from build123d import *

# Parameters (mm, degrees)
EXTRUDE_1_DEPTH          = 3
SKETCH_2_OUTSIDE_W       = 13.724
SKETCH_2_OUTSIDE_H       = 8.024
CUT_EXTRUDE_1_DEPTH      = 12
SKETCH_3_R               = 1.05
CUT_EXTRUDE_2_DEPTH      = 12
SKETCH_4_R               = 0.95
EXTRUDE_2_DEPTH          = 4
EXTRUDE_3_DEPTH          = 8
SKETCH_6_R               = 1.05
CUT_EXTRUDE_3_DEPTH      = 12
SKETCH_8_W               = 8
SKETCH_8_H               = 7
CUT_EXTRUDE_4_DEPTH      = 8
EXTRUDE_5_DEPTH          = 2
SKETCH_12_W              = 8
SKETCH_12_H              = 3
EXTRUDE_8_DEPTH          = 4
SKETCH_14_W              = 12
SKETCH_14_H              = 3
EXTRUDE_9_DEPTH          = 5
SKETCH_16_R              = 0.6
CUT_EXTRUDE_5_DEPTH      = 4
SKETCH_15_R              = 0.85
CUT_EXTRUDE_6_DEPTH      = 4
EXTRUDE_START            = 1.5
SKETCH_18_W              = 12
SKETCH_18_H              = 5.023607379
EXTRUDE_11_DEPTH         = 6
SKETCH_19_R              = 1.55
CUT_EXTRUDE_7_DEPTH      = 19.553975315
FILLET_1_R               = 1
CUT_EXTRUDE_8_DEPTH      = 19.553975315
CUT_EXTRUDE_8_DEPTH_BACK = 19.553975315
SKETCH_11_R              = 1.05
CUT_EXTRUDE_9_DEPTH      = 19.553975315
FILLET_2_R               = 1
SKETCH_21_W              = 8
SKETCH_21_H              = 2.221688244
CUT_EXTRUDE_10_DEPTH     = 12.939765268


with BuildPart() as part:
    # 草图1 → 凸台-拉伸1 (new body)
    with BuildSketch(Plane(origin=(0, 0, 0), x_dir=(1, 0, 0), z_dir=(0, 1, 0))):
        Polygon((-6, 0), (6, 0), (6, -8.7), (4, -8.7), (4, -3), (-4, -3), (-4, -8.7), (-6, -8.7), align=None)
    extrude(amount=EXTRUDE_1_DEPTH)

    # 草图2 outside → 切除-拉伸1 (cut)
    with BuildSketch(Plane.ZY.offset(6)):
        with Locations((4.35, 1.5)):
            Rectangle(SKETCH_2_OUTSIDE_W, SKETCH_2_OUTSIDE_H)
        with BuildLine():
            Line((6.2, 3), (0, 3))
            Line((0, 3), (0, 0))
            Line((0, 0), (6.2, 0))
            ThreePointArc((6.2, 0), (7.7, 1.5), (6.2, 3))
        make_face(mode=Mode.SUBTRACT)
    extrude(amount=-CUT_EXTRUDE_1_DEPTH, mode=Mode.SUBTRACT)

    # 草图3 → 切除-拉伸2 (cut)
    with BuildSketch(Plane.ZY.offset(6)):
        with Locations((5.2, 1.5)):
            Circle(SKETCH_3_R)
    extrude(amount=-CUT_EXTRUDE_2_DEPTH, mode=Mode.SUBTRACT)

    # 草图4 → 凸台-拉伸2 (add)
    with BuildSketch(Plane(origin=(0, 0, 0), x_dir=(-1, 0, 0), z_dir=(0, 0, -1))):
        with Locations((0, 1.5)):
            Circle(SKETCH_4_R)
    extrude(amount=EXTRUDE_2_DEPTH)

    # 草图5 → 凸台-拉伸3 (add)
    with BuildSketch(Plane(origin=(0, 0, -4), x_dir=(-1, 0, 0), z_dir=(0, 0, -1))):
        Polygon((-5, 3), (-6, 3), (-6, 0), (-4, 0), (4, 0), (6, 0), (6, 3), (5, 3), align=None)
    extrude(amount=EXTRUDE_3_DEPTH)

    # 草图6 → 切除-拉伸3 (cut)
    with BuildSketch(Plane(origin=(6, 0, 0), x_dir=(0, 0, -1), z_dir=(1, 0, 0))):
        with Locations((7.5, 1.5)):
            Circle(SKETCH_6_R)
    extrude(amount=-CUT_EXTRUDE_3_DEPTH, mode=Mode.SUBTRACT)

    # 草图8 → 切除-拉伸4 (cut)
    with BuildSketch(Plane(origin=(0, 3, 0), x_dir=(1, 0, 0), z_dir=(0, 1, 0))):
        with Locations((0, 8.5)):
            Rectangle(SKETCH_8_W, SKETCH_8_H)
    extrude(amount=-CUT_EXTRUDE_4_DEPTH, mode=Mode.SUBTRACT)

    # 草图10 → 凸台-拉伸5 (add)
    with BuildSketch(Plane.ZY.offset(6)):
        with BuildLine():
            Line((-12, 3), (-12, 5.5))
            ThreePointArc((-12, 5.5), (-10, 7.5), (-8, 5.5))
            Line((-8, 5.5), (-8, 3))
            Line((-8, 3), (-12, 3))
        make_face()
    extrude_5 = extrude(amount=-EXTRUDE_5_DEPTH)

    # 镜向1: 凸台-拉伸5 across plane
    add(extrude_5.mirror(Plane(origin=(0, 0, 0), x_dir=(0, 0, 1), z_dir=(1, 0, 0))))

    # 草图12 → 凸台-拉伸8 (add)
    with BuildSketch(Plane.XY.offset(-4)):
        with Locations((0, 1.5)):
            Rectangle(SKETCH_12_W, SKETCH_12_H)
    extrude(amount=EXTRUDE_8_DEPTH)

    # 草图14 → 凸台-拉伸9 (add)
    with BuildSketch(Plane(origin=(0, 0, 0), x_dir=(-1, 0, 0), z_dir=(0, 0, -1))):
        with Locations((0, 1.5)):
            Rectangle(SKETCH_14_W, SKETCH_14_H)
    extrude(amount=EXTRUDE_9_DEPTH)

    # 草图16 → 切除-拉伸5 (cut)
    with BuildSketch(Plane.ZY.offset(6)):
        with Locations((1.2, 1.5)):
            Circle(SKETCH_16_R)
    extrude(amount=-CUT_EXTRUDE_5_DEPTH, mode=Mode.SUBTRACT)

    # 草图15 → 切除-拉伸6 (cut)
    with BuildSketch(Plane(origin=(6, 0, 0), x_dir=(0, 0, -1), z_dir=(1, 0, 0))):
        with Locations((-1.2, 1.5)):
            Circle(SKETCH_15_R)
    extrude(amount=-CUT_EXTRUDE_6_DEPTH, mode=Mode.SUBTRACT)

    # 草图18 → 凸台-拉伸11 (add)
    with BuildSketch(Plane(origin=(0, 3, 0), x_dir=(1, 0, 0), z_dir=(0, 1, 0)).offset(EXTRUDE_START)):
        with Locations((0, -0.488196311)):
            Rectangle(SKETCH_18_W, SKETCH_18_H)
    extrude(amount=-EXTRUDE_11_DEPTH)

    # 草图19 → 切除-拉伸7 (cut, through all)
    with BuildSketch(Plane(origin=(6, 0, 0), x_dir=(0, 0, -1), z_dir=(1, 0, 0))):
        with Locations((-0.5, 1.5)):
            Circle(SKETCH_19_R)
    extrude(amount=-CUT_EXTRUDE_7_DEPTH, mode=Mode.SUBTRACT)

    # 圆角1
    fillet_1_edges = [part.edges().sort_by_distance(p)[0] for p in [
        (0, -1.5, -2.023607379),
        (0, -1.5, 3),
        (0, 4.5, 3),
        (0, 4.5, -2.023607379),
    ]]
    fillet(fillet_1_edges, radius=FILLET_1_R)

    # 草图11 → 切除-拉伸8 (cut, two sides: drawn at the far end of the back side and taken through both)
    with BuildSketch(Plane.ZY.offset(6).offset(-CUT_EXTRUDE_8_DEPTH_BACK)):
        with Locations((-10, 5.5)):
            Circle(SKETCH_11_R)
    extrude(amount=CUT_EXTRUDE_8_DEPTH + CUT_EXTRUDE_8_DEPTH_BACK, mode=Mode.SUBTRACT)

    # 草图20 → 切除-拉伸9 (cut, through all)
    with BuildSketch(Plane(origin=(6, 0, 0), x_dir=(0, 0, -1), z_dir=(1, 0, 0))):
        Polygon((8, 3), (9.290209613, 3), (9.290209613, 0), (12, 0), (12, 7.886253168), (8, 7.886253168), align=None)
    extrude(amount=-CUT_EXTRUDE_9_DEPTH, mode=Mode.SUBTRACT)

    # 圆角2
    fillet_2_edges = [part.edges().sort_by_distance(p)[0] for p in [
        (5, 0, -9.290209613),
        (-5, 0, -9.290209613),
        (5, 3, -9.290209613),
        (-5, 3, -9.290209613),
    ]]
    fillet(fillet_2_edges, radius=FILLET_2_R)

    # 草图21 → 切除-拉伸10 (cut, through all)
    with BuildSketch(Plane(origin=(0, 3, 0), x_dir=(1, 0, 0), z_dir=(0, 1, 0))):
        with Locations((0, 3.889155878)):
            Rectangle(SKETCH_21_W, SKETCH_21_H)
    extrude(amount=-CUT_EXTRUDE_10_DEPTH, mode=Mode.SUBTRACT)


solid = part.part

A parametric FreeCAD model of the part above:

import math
import FreeCAD as App
import Part
import Sketcher
from FreeCAD import Vector


def edges_at(feature, points):
    """Names of the edges that pass closest to the given points."""
    edges = feature.Shape.Edges
    near = lambda p: min(range(len(edges)), key=lambda i: edges[i].distToShape(Part.Vertex(*p))[0])
    return sorted({f"Edge{near(p) + 1}" for p in points})


def add_polygon(sketch, points):
    """Adds a closed chain of lines whose ends are joined by coincident constraints."""
    first, n = sketch.GeometryCount, len(points)
    for a, b in zip(points, points[1:] + points[:1]):
        sketch.addGeometry(Part.LineSegment(App.Vector(*a, 0), App.Vector(*b, 0)), False)
    for i in range(n):
        sketch.addConstraint(Sketcher.Constraint("Coincident", first + i, 2, first + (i + 1) % n, 1))

doc = App.newDocument("Part")
body = doc.addObject("PartDesign::Body", "Body")

sketch1 = body.newObject("Sketcher::SketchObject", "Sketch")
sketch1.AttachmentSupport = (doc.getObject("XZ_Plane"), [""])
sketch1.MapMode = "FlatFace"
add_polygon(sketch1, [(6, 0), (-6, 0), (-6, 8.7), (-4, 8.7), (-4, 3), (4, 3), (4, 8.7), (6, 8.7)])
sketch1.addConstraint(Sketcher.Constraint("Horizontal", 0))
sketch1.addConstraint(Sketcher.Constraint("Vertical", 1))
sketch1.addConstraint(Sketcher.Constraint("Horizontal", 2))
sketch1.addConstraint(Sketcher.Constraint("Vertical", 3))
sketch1.addConstraint(Sketcher.Constraint("Horizontal", 4))
sketch1.addConstraint(Sketcher.Constraint("Vertical", 5))
sketch1.addConstraint(Sketcher.Constraint("Horizontal", 6))
sketch1.addConstraint(Sketcher.Constraint("Vertical", 7))
sketch1.addConstraint(Sketcher.Constraint("Symmetric", 0, 2, 7, 2, -1, 1))
sketch1.addConstraint(Sketcher.Constraint("Symmetric", 2, 2, 5, 2, -2))
sketch1.addConstraint(Sketcher.Constraint("DistanceX", 0, 2, 0, 1, 12.0))
sketch1.addConstraint(Sketcher.Constraint("DistanceX", 2, 1, 2, 2, 2.0))
sketch1.addConstraint(Sketcher.Constraint("DistanceY", 1, 1, 1, 2, 8.7))
sketch1.addConstraint(Sketcher.Constraint("DistanceY", 3, 2, 3, 1, 5.7))
pad1 = body.newObject("PartDesign::Pad", "Pad")
pad1.Profile = sketch1
pad1.Length = 3
pad1.Reversed = True

sketch2 = body.newObject("Sketcher::SketchObject", "Sketch001")
sketch2.AttachmentSupport = (doc.getObject("YZ_Plane"), [""])
sketch2.MapMode = "FlatFace"
sketch2.AttachmentOffset = App.Placement(Vector(0, 0, -6), App.Rotation())
add_polygon(sketch2, [(5.5, -2.5), (-2.5, -2.5), (-2.5, 11.2), (5.5, 11.2)])
sketch2.addGeometry(Part.LineSegment(Vector(3, 0, 0), Vector(3, 6.2, 0)), False)
sketch2.addGeometry(Part.ArcOfCircle(Part.Circle(Vector(1.5, 6.2, 0), Vector(0, 0, 1), 1.5), math.radians(0), math.radians(180)), False)
sketch2.addGeometry(Part.LineSegment(Vector(0, 6.2, 0), Vector(0, 0, 0)), False)
sketch2.addGeometry(Part.LineSegment(Vector(0, 0, 0), Vector(3, 0, 0)), False)
sketch2.addConstraint(Sketcher.Constraint("Tangent", 4, 2, 5, 1))
sketch2.addConstraint(Sketcher.Constraint("Tangent", 5, 2, 6, 1))
sketch2.addConstraint(Sketcher.Constraint("Coincident", 6, 2, 7, 1))
sketch2.addConstraint(Sketcher.Constraint("Coincident", 7, 2, 4, 1))
sketch2.addConstraint(Sketcher.Constraint("Horizontal", 0))
sketch2.addConstraint(Sketcher.Constraint("Vertical", 1))
sketch2.addConstraint(Sketcher.Constraint("Horizontal", 2))
sketch2.addConstraint(Sketcher.Constraint("Vertical", 3))
sketch2.addConstraint(Sketcher.Constraint("Vertical", 4))
sketch2.addConstraint(Sketcher.Constraint("Vertical", 6))
sketch2.addConstraint(Sketcher.Constraint("Horizontal", 7))
sketch2.addConstraint(Sketcher.Constraint("Coincident", 6, 2, -1, 1))
sketch2.addConstraint(Sketcher.Constraint("Radius", 5, 1.5))
sketch2.addConstraint(Sketcher.Constraint("DistanceY", 4, 1, 4, 2, 6.2))
sketch2.addConstraint(Sketcher.Constraint("DistanceX", 0, 2, 0, 1, 8.024))
sketch2.addConstraint(Sketcher.Constraint("DistanceY", 1, 1, 1, 2, 13.724))
sketch2.addConstraint(Sketcher.Constraint("DistanceX", 0, 2, -1, 1, 2.512))
sketch2.addConstraint(Sketcher.Constraint("DistanceY", 0, 2, -1, 1, 2.512))
pocket1 = body.newObject("PartDesign::Pocket", "Pocket")
pocket1.Profile = sketch2
pocket1.Length = 12
pocket1.Reversed = True

sketch3 = body.newObject("Sketcher::SketchObject", "Sketch002")
sketch3.AttachmentSupport = (doc.getObject("YZ_Plane"), [""])
sketch3.MapMode = "FlatFace"
sketch3.AttachmentOffset = App.Placement(Vector(0, 0, -6), App.Rotation())
sketch3.addGeometry(Part.Circle(Vector(1.5, 5.2, 0), Vector(0, 0, 1), 1.1), False)
sketch3.addConstraint(Sketcher.Constraint("Diameter", 0, 2.1))
sketch3.addConstraint(Sketcher.Constraint("DistanceX", -1, 1, 0, 3, 1.5))
sketch3.addConstraint(Sketcher.Constraint("DistanceY", -1, 1, 0, 3, 5.2))
pocket2 = body.newObject("PartDesign::Pocket", "Pocket001")
pocket2.Profile = sketch3
pocket2.Length = 12
pocket2.Reversed = True

sketch4 = body.newObject("Sketcher::SketchObject", "Sketch003")
sketch4.AttachmentSupport = (doc.getObject("XY_Plane"), [""])
sketch4.MapMode = "FlatFace"
sketch4.addGeometry(Part.Circle(Vector(0, 1.5, 0), Vector(0, 0, 1), 0.9), False)
sketch4.addConstraint(Sketcher.Constraint("PointOnObject", 0, 3, -2))
sketch4.addConstraint(Sketcher.Constraint("Diameter", 0, 1.9))
sketch4.addConstraint(Sketcher.Constraint("DistanceY", -1, 1, 0, 3, 1.5))
pad2 = body.newObject("PartDesign::Pad", "Pad001")
pad2.Profile = sketch4
pad2.Length = 4
pad2.Reversed = True

sketch5 = body.newObject("Sketcher::SketchObject", "Sketch004")
sketch5.AttachmentSupport = (doc.getObject("XY_Plane"), [""])
sketch5.MapMode = "FlatFace"
sketch5.AttachmentOffset = App.Placement(Vector(0, 0, -4), App.Rotation())
add_polygon(sketch5, [(6, 3), (6, 0), (-6, 0), (-6, 3)])
sketch5.addConstraint(Sketcher.Constraint("Vertical", 0))
sketch5.addConstraint(Sketcher.Constraint("Horizontal", 1))
sketch5.addConstraint(Sketcher.Constraint("Vertical", 2))
sketch5.addConstraint(Sketcher.Constraint("Horizontal", 3))
sketch5.addConstraint(Sketcher.Constraint("Symmetric", 0, 2, 1, 2, -1, 1))
sketch5.addConstraint(Sketcher.Constraint("DistanceX", 1, 2, 1, 1, 12.0))
sketch5.addConstraint(Sketcher.Constraint("DistanceY", 0, 2, 0, 1, 3.0))
pad3 = body.newObject("PartDesign::Pad", "Pad002")
pad3.Profile = sketch5
pad3.Length = 8
pad3.Reversed = True

sketch6 = body.newObject("Sketcher::SketchObject", "Sketch005")
sketch6.AttachmentSupport = (doc.getObject("YZ_Plane"), [""])
sketch6.MapMode = "FlatFace"
sketch6.AttachmentOffset = App.Placement(Vector(0, 0, 6), App.Rotation())
sketch6.addGeometry(Part.Circle(Vector(1.5, -7.5, 0), Vector(0, 0, 1), 1.1), False)
sketch6.addConstraint(Sketcher.Constraint("Diameter", 0, 2.1))
sketch6.addConstraint(Sketcher.Constraint("DistanceX", -1, 1, 0, 3, 1.5))
sketch6.addConstraint(Sketcher.Constraint("DistanceY", 0, 3, -1, 1, 7.5))
pocket3 = body.newObject("PartDesign::Pocket", "Pocket002")
pocket3.Profile = sketch6
pocket3.Length = 12

sketch7 = body.newObject("Sketcher::SketchObject", "Sketch006")
sketch7.AttachmentSupport = (doc.getObject("XZ_Plane"), [""])
sketch7.MapMode = "FlatFace"
sketch7.AttachmentOffset = App.Placement(Vector(0, 0, -3), App.Rotation())
add_polygon(sketch7, [(-4, -12), (-4, -5), (4, -5), (4, -12)])
sketch7.addConstraint(Sketcher.Constraint("Vertical", 0))
sketch7.addConstraint(Sketcher.Constraint("Horizontal", 1))
sketch7.addConstraint(Sketcher.Constraint("Vertical", 2))
sketch7.addConstraint(Sketcher.Constraint("Horizontal", 3))
sketch7.addConstraint(Sketcher.Constraint("DistanceX", 1, 1, 1, 2, 8.0))
sketch7.addConstraint(Sketcher.Constraint("DistanceY", 0, 1, 0, 2, 7.0))
sketch7.addConstraint(Sketcher.Constraint("DistanceX", 0, 2, -1, 1, 4.0))
sketch7.addConstraint(Sketcher.Constraint("DistanceY", 0, 2, -1, 1, 5.0))
pocket4 = body.newObject("PartDesign::Pocket", "Pocket003")
pocket4.Profile = sketch7
pocket4.Length = 8
pocket4.Reversed = True

sketch8 = body.newObject("Sketcher::SketchObject", "Sketch007")
sketch8.AttachmentSupport = (doc.getObject("YZ_Plane"), [""])
sketch8.MapMode = "FlatFace"
sketch8.AttachmentOffset = App.Placement(Vector(0, 0, -6), App.Rotation())
sketch8.addGeometry(Part.LineSegment(Vector(5.5, -12, 0), Vector(3, -12, 0)), False)
sketch8.addGeometry(Part.LineSegment(Vector(3, -12, 0), Vector(3, -8, 0)), False)
sketch8.addGeometry(Part.LineSegment(Vector(3, -8, 0), Vector(5.5, -8, 0)), False)
sketch8.addGeometry(Part.ArcOfCircle(Part.Circle(Vector(5.5, -10, 0), Vector(0, 0, 1), 2), math.radians(-90), math.radians(90)), False)
sketch8.addConstraint(Sketcher.Constraint("Coincident", 0, 2, 1, 1))
sketch8.addConstraint(Sketcher.Constraint("Coincident", 1, 2, 2, 1))
sketch8.addConstraint(Sketcher.Constraint("Tangent", 2, 2, 3, 2))
sketch8.addConstraint(Sketcher.Constraint("Tangent", 3, 1, 0, 1))
sketch8.addConstraint(Sketcher.Constraint("Horizontal", 0))
sketch8.addConstraint(Sketcher.Constraint("Vertical", 1))
sketch8.addConstraint(Sketcher.Constraint("Horizontal", 2))
sketch8.addConstraint(Sketcher.Constraint("Radius", 3, 2.0))
sketch8.addConstraint(Sketcher.Constraint("DistanceX", 0, 2, 0, 1, 2.5))
sketch8.addConstraint(Sketcher.Constraint("DistanceY", 3, 3, -1, 1, 10.0))
sketch8.addConstraint(Sketcher.Constraint("DistanceX", -1, 1, 0, 2, 3.0))
pad4 = body.newObject("PartDesign::Pad", "Pad003")
pad4.Profile = sketch8
pad4.Length = 2
doc.recompute()

mirrored = body.newObject("PartDesign::Mirrored", "Mirrored")
mirrored.Originals = [pad4]
mirrored.MirrorPlane = (doc.getObject("YZ_Plane"), [""])
body.Tip = mirrored

sketch9 = body.newObject("Sketcher::SketchObject", "Sketch008")
sketch9.AttachmentSupport = (doc.getObject("XY_Plane"), [""])
sketch9.MapMode = "FlatFace"
sketch9.AttachmentOffset = App.Placement(Vector(0, 0, -4), App.Rotation())
add_polygon(sketch9, [(-4, 3), (-4, 0), (4, 0), (4, 3)])
sketch9.addConstraint(Sketcher.Constraint("Vertical", 0))
sketch9.addConstraint(Sketcher.Constraint("Horizontal", 1))
sketch9.addConstraint(Sketcher.Constraint("Vertical", 2))
sketch9.addConstraint(Sketcher.Constraint("Horizontal", 3))
sketch9.addConstraint(Sketcher.Constraint("Symmetric", 0, 2, 1, 2, -1, 1))
sketch9.addConstraint(Sketcher.Constraint("DistanceX", 1, 1, 1, 2, 8.0))
sketch9.addConstraint(Sketcher.Constraint("DistanceY", 0, 2, 0, 1, 3.0))
pad5 = body.newObject("PartDesign::Pad", "Pad004")
pad5.Profile = sketch9
pad5.Length = 4

sketch10 = body.newObject("Sketcher::SketchObject", "Sketch009")
sketch10.AttachmentSupport = (doc.getObject("XY_Plane"), [""])
sketch10.MapMode = "FlatFace"
add_polygon(sketch10, [(6, 3), (6, 0), (-6, 0), (-6, 3)])
sketch10.addConstraint(Sketcher.Constraint("Vertical", 0))
sketch10.addConstraint(Sketcher.Constraint("Horizontal", 1))
sketch10.addConstraint(Sketcher.Constraint("Vertical", 2))
sketch10.addConstraint(Sketcher.Constraint("Horizontal", 3))
sketch10.addConstraint(Sketcher.Constraint("Symmetric", 0, 2, 1, 2, -1, 1))
sketch10.addConstraint(Sketcher.Constraint("DistanceX", 1, 2, 1, 1, 12.0))
sketch10.addConstraint(Sketcher.Constraint("DistanceY", 0, 2, 0, 1, 3.0))
pad6 = body.newObject("PartDesign::Pad", "Pad005")
pad6.Profile = sketch10
pad6.Length = 5
pad6.Reversed = True

sketch11 = body.newObject("Sketcher::SketchObject", "Sketch010")
sketch11.AttachmentSupport = (doc.getObject("YZ_Plane"), [""])
sketch11.MapMode = "FlatFace"
sketch11.AttachmentOffset = App.Placement(Vector(0, 0, -6), App.Rotation())
sketch11.addGeometry(Part.Circle(Vector(1.5, 1.2, 0), Vector(0, 0, 1), 0.6), False)
sketch11.addConstraint(Sketcher.Constraint("Diameter", 0, 1.2))
sketch11.addConstraint(Sketcher.Constraint("DistanceX", -1, 1, 0, 3, 1.5))
sketch11.addConstraint(Sketcher.Constraint("DistanceY", -1, 1, 0, 3, 1.2))
pocket5 = body.newObject("PartDesign::Pocket", "Pocket004")
pocket5.Profile = sketch11
pocket5.Length = 4
pocket5.Reversed = True

sketch12 = body.newObject("Sketcher::SketchObject", "Sketch011")
sketch12.AttachmentSupport = (doc.getObject("YZ_Plane"), [""])
sketch12.MapMode = "FlatFace"
sketch12.AttachmentOffset = App.Placement(Vector(0, 0, 6), App.Rotation())
sketch12.addGeometry(Part.Circle(Vector(1.5, 1.2, 0), Vector(0, 0, 1), 0.8), False)
sketch12.addConstraint(Sketcher.Constraint("Diameter", 0, 1.7))
sketch12.addConstraint(Sketcher.Constraint("DistanceX", -1, 1, 0, 3, 1.5))
sketch12.addConstraint(Sketcher.Constraint("DistanceY", -1, 1, 0, 3, 1.2))
pocket6 = body.newObject("PartDesign::Pocket", "Pocket005")
pocket6.Profile = sketch12
pocket6.Length = 4

sketch13 = body.newObject("Sketcher::SketchObject", "Sketch012")
sketch13.AttachmentSupport = (doc.getObject("XZ_Plane"), [""])
sketch13.MapMode = "FlatFace"
sketch13.AttachmentOffset = App.Placement(Vector(0, 0, -4.5), App.Rotation())
add_polygon(sketch13, [(-6, -2), (-6, 3), (6, 3), (6, -2)])
sketch13.addConstraint(Sketcher.Constraint("Vertical", 0))
sketch13.addConstraint(Sketcher.Constraint("Horizontal", 1))
sketch13.addConstraint(Sketcher.Constraint("Vertical", 2))
sketch13.addConstraint(Sketcher.Constraint("Horizontal", 3))
sketch13.addConstraint(Sketcher.Constraint("DistanceX", 1, 1, 1, 2, 12.0))
sketch13.addConstraint(Sketcher.Constraint("DistanceX", 0, 2, -1, 1, 6.0))
sketch13.addConstraint(Sketcher.Constraint("DistanceY", -1, 1, 0, 2, 3.0))
sketch13.addConstraint(Sketcher.Constraint("DistanceY", 0, 1, 0, 2, 5.023607))
pad7 = body.newObject("PartDesign::Pad", "Pad006")
pad7.Profile = sketch13
pad7.Length = 6

sketch14 = body.newObject("Sketcher::SketchObject", "Sketch013")
sketch14.AttachmentSupport = (doc.getObject("YZ_Plane"), [""])
sketch14.MapMode = "FlatFace"
sketch14.AttachmentOffset = App.Placement(Vector(0, 0, 6), App.Rotation())
sketch14.addGeometry(Part.Circle(Vector(1.5, 0.5, 0), Vector(0, 0, 1), 1.6), False)
sketch14.addConstraint(Sketcher.Constraint("Diameter", 0, 3.1))
sketch14.addConstraint(Sketcher.Constraint("DistanceX", -1, 1, 0, 3, 1.5))
sketch14.addConstraint(Sketcher.Constraint("DistanceY", -1, 1, 0, 3, 0.5))
pocket7 = body.newObject("PartDesign::Pocket", "Pocket006")
pocket7.Profile = sketch14
pocket7.Type = "ThroughAll"
doc.recompute()

fillet = body.newObject("PartDesign::Fillet", "Fillet")
fillet.Base = (pocket7, edges_at(pocket7, [
    (0, -1.5, -2.024),
    (0, -1.5, 3),
    (0, 4.5, 3),
    (0, 4.5, -2.024),
]))
fillet.Radius = 1

sketch15 = body.newObject("Sketcher::SketchObject", "Sketch014")
sketch15.AttachmentSupport = (doc.getObject("YZ_Plane"), [""])
sketch15.MapMode = "FlatFace"
sketch15.AttachmentOffset = App.Placement(Vector(0, 0, -6), App.Rotation())
sketch15.addGeometry(Part.Circle(Vector(5.5, -10, 0), Vector(0, 0, 1), 1.1), False)
sketch15.addConstraint(Sketcher.Constraint("Diameter", 0, 2.1))
sketch15.addConstraint(Sketcher.Constraint("DistanceY", 0, 3, -1, 1, 10.0))
sketch15.addConstraint(Sketcher.Constraint("DistanceX", -1, 1, 0, 3, 5.5))
pocket8 = body.newObject("PartDesign::Pocket", "Pocket007")
pocket8.Profile = sketch15
pocket8.Type = "ThroughAll"
pocket8.Midplane = True

sketch16 = body.newObject("Sketcher::SketchObject", "Sketch015")
sketch16.AttachmentSupport = (doc.getObject("YZ_Plane"), [""])
sketch16.MapMode = "FlatFace"
sketch16.AttachmentOffset = App.Placement(Vector(0, 0, 6), App.Rotation())
add_polygon(sketch16, [(3, -8), (3, -9.3), (0, -9.3), (0, -12), (7.9, -12), (7.9, -8)])
sketch16.addConstraint(Sketcher.Constraint("Vertical", 0))
sketch16.addConstraint(Sketcher.Constraint("Horizontal", 1))
sketch16.addConstraint(Sketcher.Constraint("Vertical", 2))
sketch16.addConstraint(Sketcher.Constraint("Horizontal", 3))
sketch16.addConstraint(Sketcher.Constraint("Vertical", 4))
sketch16.addConstraint(Sketcher.Constraint("Horizontal", 5))
sketch16.addConstraint(Sketcher.Constraint("PointOnObject", 1, 2, -2))
sketch16.addConstraint(Sketcher.Constraint("DistanceX", 1, 2, 1, 1, 3.0))
sketch16.addConstraint(Sketcher.Constraint("DistanceY", 4, 1, 4, 2, 4.0))
sketch16.addConstraint(Sketcher.Constraint("DistanceY", 2, 2, -1, 1, 12.0))
sketch16.addConstraint(Sketcher.Constraint("DistanceY", 0, 2, 0, 1, 1.29021))
sketch16.addConstraint(Sketcher.Constraint("DistanceX", 3, 1, 3, 2, 7.886253))
pocket9 = body.newObject("PartDesign::Pocket", "Pocket008")
pocket9.Profile = sketch16
pocket9.Type = "ThroughAll"
doc.recompute()

fillet2 = body.newObject("PartDesign::Fillet", "Fillet001")
fillet2.Base = (pocket9, edges_at(pocket9, [
    (5, 0, -9.29),
    (-5, 0, -9.29),
    (5, 3, -9.29),
    (-5, 3, -9.29),
]))
fillet2.Radius = 1

sketch17 = body.newObject("Sketcher::SketchObject", "Sketch016")
sketch17.AttachmentSupport = (doc.getObject("XZ_Plane"), [""])
sketch17.MapMode = "FlatFace"
sketch17.AttachmentOffset = App.Placement(Vector(0, 0, -3), App.Rotation())
add_polygon(sketch17, [(-4, -5), (-4, -2.8), (4, -2.8), (4, -5)])
sketch17.addConstraint(Sketcher.Constraint("Vertical", 0))
sketch17.addConstraint(Sketcher.Constraint("Horizontal", 1))
sketch17.addConstraint(Sketcher.Constraint("Vertical", 2))
sketch17.addConstraint(Sketcher.Constraint("Horizontal", 3))
sketch17.addConstraint(Sketcher.Constraint("DistanceX", 1, 1, 1, 2, 8.0))
sketch17.addConstraint(Sketcher.Constraint("DistanceX", 0, 2, -1, 1, 4.0))
sketch17.addConstraint(Sketcher.Constraint("DistanceY", 2, 2, -1, 1, 5.0))
sketch17.addConstraint(Sketcher.Constraint("DistanceY", 0, 1, 0, 2, 2.221688))
pocket10 = body.newObject("PartDesign::Pocket", "Pocket009")
pocket10.Profile = sketch17
pocket10.Type = "ThroughAll"
pocket10.Reversed = True

doc.recompute()
